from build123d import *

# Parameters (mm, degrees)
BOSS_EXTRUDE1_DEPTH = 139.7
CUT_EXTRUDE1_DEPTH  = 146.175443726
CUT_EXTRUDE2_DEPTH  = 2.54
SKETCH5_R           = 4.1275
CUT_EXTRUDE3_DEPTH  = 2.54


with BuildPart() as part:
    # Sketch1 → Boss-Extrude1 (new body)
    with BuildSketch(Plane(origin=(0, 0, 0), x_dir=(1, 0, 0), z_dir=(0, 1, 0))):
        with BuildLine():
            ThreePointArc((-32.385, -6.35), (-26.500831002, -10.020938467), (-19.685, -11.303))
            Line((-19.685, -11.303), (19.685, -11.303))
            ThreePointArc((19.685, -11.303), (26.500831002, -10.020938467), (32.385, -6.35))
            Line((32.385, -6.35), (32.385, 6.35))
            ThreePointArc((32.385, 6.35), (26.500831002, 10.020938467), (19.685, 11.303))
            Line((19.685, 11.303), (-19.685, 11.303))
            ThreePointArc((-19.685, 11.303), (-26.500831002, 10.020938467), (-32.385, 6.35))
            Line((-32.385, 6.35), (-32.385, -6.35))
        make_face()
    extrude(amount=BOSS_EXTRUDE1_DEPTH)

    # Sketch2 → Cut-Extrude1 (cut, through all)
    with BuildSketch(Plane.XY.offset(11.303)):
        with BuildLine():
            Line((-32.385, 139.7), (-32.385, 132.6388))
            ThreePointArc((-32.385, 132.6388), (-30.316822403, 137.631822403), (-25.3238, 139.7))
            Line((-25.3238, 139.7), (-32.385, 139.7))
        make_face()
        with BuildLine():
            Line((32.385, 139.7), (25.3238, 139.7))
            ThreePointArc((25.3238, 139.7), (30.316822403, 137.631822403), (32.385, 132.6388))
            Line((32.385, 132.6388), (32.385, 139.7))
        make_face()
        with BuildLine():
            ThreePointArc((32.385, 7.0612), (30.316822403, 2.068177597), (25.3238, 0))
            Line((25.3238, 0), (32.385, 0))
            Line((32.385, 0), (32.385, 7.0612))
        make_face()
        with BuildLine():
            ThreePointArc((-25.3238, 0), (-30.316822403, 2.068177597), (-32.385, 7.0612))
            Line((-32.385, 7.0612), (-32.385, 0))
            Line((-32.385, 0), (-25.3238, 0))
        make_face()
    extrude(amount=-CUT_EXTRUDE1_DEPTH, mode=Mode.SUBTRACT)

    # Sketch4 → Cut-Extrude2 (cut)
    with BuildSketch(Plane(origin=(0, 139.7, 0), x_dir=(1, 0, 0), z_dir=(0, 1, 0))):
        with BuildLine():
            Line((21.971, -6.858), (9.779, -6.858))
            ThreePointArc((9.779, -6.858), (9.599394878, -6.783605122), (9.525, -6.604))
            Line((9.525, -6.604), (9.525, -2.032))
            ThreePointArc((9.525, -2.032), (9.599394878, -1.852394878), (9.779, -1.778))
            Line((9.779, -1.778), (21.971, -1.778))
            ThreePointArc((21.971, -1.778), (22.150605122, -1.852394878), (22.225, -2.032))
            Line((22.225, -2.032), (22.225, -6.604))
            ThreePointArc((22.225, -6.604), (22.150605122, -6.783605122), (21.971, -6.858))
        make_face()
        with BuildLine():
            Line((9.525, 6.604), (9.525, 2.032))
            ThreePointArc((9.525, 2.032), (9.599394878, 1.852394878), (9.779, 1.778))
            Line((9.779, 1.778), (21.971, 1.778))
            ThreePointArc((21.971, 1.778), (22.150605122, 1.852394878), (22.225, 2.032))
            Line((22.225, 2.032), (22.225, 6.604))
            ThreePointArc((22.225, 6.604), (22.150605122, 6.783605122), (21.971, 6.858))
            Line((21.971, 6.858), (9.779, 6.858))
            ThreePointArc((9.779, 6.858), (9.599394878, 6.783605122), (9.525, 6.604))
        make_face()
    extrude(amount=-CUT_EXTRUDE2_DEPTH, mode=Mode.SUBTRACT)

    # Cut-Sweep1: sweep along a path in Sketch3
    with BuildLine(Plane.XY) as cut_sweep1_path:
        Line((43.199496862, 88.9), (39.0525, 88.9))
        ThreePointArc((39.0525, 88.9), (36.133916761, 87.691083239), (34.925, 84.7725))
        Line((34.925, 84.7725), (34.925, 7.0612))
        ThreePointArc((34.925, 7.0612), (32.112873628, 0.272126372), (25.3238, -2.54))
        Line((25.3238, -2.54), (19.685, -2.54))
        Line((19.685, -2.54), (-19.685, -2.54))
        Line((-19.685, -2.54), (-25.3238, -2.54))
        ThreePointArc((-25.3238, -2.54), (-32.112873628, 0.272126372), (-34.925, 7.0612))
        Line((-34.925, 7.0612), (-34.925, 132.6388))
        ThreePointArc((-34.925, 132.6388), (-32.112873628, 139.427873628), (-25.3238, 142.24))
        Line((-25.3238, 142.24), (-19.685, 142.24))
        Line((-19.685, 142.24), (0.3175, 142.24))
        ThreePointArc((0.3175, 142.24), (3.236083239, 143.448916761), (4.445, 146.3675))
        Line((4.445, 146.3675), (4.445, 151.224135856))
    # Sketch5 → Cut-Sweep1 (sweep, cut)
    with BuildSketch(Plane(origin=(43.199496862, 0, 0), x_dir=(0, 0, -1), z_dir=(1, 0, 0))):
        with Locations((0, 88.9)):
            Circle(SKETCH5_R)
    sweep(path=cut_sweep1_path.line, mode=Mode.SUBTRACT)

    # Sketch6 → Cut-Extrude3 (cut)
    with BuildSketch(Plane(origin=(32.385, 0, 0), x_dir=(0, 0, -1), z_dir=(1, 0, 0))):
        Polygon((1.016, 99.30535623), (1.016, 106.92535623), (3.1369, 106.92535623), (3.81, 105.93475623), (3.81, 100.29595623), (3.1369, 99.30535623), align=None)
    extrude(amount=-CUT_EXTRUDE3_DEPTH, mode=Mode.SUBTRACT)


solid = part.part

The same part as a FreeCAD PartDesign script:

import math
import FreeCAD as App
import Part
import Sketcher
Q = App.Units.Quantity


def add_polygon(sketch, points):
    """Adds a closed chain of lines whose ends are joined by coincident constraints."""
    first, n = sketch.GeometryCount, len(points)
    for a, b in zip(points, points[1:] + points[:1]):
        sketch.addGeometry(Part.LineSegment(App.Vector(*a, 0), App.Vector(*b, 0)), False)
    for i in range(n):
        sketch.addConstraint(Sketcher.Constraint("Coincident", first + i, 2, first + (i + 1) % n, 1))

doc = App.newDocument("Part")
body = doc.addObject("PartDesign::Body", "Body")

# Sketch on XZ plane
sketch1 = body.newObject("Sketcher::SketchObject", "Sketch")
sketch1.AttachmentSupport = (doc.getObject("XZ_Plane"), [""])
sketch1.MapMode = "FlatFace"
sketch1.addGeometry([
    Part.ArcOfCircle(Part.Circle(App.Vector(-20, -7, 0), App.Vector(0, 0, 1), 19), math.radians(90), math.radians(133)),  # 0
    Part.LineSegment(App.Vector(-20, 11, 0), App.Vector(20, 11, 0)),  # 1
    Part.ArcOfCircle(Part.Circle(App.Vector(20, -7, 0), App.Vector(0, 0, 1), 19), math.radians(47), math.radians(90)),  # 2
    Part.LineSegment(App.Vector(32, 6, 0), App.Vector(32, -6, 0)),  # 3
    Part.ArcOfCircle(Part.Circle(App.Vector(20, 7, 0), App.Vector(0, 0, 1), 19), math.radians(-90), math.radians(-47)),  # 4
    Part.LineSegment(App.Vector(20, -11, 0), App.Vector(-20, -11, 0)),  # 5
    Part.ArcOfCircle(Part.Circle(App.Vector(-20, 7, 0), App.Vector(0, 0, 1), 19), math.radians(-133), math.radians(-90)),  # 6
    Part.LineSegment(App.Vector(-32, -6, 0), App.Vector(-32, 6, 0)),  # 7
], False)
sketch1.addConstraint([
    Sketcher.Constraint("Tangent", 0, 1, 1, 1),
    Sketcher.Constraint("Tangent", 1, 2, 2, 2),
    Sketcher.Constraint("Coincident", 2, 1, 3, 1),
    Sketcher.Constraint("Coincident", 3, 2, 4, 2),
    Sketcher.Constraint("Tangent", 4, 1, 5, 1),
    Sketcher.Constraint("Tangent", 5, 2, 6, 2),
    Sketcher.Constraint("Coincident", 6, 1, 7, 1),
    Sketcher.Constraint("Coincident", 7, 2, 0, 2),
    Sketcher.Constraint("Horizontal", 1),
    Sketcher.Constraint("Vertical", 3),
    Sketcher.Constraint("Horizontal", 5),
    Sketcher.Constraint("Vertical", 7),
    Sketcher.Constraint("Equal", 0, 2),
    Sketcher.Constraint("Equal", 2, 4),
    Sketcher.Constraint("Equal", 4, 6),
    Sketcher.Constraint("Symmetric", 0, 3, 4, 3, -1, 1),
    Sketcher.Constraint("Symmetric", 2, 1, 6, 1, -1, 1),
    Sketcher.Constraint("Horizontal", 3, 2, 6, 1),
    Sketcher.Constraint("DistanceY", 3, 2, 3, 1, Q("0.5 in")),
    Sketcher.Constraint("DistanceX", 1, 1, 1, 2, Q("1.55 in")),
    Sketcher.Constraint("DistanceX", 4, 3, 2, 1, Q("0.5 in")),
    Sketcher.Constraint("DistanceY", 4, 1, 1, 2, Q("0.89 in")),
])
pad1 = body.newObject("PartDesign::Pad", "Pad")
pad1.Profile = sketch1
pad1.Length = Q("5.5 in")
pad1.Reversed = True

# Sketch on XY plane
sketch2 = body.newObject("Sketcher::SketchObject", "Sketch001")
sketch2.AttachmentSupport = (doc.getObject("XY_Plane"), [""])
sketch2.MapMode = "FlatFace"
sketch2.AttachmentOffset = App.Placement(App.Vector(0, 0, 0.445 * 25.4), App.Rotation())
sketch2.addGeometry([
    Part.LineSegment(App.Vector(-32, 140, 0), App.Vector(-32, 133, 0)),  # 0
    Part.ArcOfCircle(Part.Circle(App.Vector(-25, 133, 0), App.Vector(0, 0, 1), 7), math.radians(90), math.radians(180)),  # 1
    Part.LineSegment(App.Vector(-25, 140, 0), App.Vector(-32, 140, 0)),  # 2
    Part.LineSegment(App.Vector(32, 140, 0), App.Vector(25, 140, 0)),  # 3
    Part.ArcOfCircle(Part.Circle(App.Vector(25, 133, 0), App.Vector(0, 0, 1), 7), math.radians(0), math.radians(90)),  # 4
    Part.LineSegment(App.Vector(32, 133, 0), App.Vector(32, 140, 0)),  # 5
    Part.ArcOfCircle(Part.Circle(App.Vector(25, 7, 0), App.Vector(0, 0, 1), 7), math.radians(-90), math.radians(0)),  # 6
    Part.LineSegment(App.Vector(25, 0, 0), App.Vector(32, 0, 0)),  # 7
    Part.LineSegment(App.Vector(32, 0, 0), App.Vector(32, 7, 0)),  # 8
    Part.ArcOfCircle(Part.Circle(App.Vector(-25, 7, 0), App.Vector(0, 0, 1), 7), math.radians(-180), math.radians(-90)),  # 9
    Part.LineSegment(App.Vector(-32, 7, 0), App.Vector(-32, 0, 0)),  # 10
    Part.LineSegment(App.Vector(-32, 0, 0), App.Vector(-25, 0, 0)),  # 11
], False)
sketch2.addConstraint([
    Sketcher.Constraint("Tangent", 0, 2, 1, 2),
    Sketcher.Constraint("Tangent", 1, 1, 2, 1),
    Sketcher.Constraint("Coincident", 2, 2, 0, 1),
    Sketcher.Constraint("Tangent", 3, 2, 4, 2),
    Sketcher.Constraint("Tangent", 4, 1, 5, 1),
    Sketcher.Constraint("Coincident", 5, 2, 3, 1),
    Sketcher.Constraint("Tangent", 6, 1, 7, 1),
    Sketcher.Constraint("Coincident", 7, 2, 8, 1),
    Sketcher.Constraint("Tangent", 8, 2, 6, 2),
    Sketcher.Constraint("Tangent", 9, 1, 10, 1),
    Sketcher.Constraint("Coincident", 10, 2, 11, 1),
    Sketcher.Constraint("Tangent", 11, 2, 9, 2),
    Sketcher.Constraint("Vertical", 0),
    Sketcher.Constraint("Horizontal", 2),
    Sketcher.Constraint("Horizontal", 3),
    Sketcher.Constraint("Vertical", 5),
    Sketcher.Constraint("Horizontal", 7),
    Sketcher.Constraint("Vertical", 8),
    Sketcher.Constraint("Vertical", 10),
    Sketcher.Constraint("Horizontal", 11),
    Sketcher.Constraint("Equal", 1, 4),
    Sketcher.Constraint("Equal", 4, 6),
    Sketcher.Constraint("Equal", 6, 9),
    Sketcher.Constraint("Symmetric", 7, 2, 10, 2, -1, 1),
    Sketcher.Constraint("Symmetric", 1, 3, 4, 3, -2),
    Sketcher.Constraint("PointOnObject", 6, 1, -1),
    Sketcher.Constraint("Vertical", 4, 3, 6, 3),
    Sketcher.Constraint("Radius", 1, Q("0.278 in")),
    Sketcher.Constraint("DistanceY", -1, 1, 1, 1, Q("5.5 in")),
    Sketcher.Constraint("DistanceX", 0, 2, 4, 1, Q("2.55 in")),
])
pocket1 = body.newObject("PartDesign::Pocket", "Pocket")
pocket1.Profile = sketch2
pocket1.Type = "ThroughAll"

# Sketch on XZ plane
sketch3 = body.newObject("Sketcher::SketchObject", "Sketch002")
sketch3.AttachmentSupport = (doc.getObject("XZ_Plane"), [""])
sketch3.MapMode = "FlatFace"
sketch3.AttachmentOffset = App.Placement(App.Vector(0, 0, -5.5 * 25.4), App.Rotation())
sketch3.addGeometry([
    Part.LineSegment(App.Vector(9.78, 6.86, 0), App.Vector(21.97, 6.86, 0)),  # 0
    Part.ArcOfCircle(Part.Circle(App.Vector(21.97, 6.6, 0), App.Vector(0, 0, 1), 0.25), math.radians(0), math.radians(90)),  # 1
    Part.LineSegment(App.Vector(22.23, 6.6, 0), App.Vector(22.23, 2.03, 0)),  # 2
    Part.ArcOfCircle(Part.Circle(App.Vector(21.97, 2.03, 0), App.Vector(0, 0, 1), 0.25), math.radians(-90), math.radians(0)),  # 3
    Part.LineSegment(App.Vector(21.97, 1.78, 0), App.Vector(9.78, 1.78, 0)),  # 4
    Part.ArcOfCircle(Part.Circle(App.Vector(9.78, 2.03, 0), App.Vector(0, 0, 1), 0.25), math.radians(-180), math.radians(-90)),  # 5
    Part.LineSegment(App.Vector(9.53, 2.03, 0), App.Vector(9.53, 6.6, 0)),  # 6
    Part.ArcOfCircle(Part.Circle(App.Vector(9.78, 6.6, 0), App.Vector(0, 0, 1), 0.25), math.radians(90), math.radians(180)),  # 7
    Part.LineSegment(App.Vector(9.53, -6.6, 0), App.Vector(9.53, -2.03, 0)),  # 8
    Part.ArcOfCircle(Part.Circle(App.Vector(9.78, -2.03, 0), App.Vector(0, 0, 1), 0.25), math.radians(90), math.radians(180)),  # 9
    Part.LineSegment(App.Vector(9.78, -1.78, 0), App.Vector(21.97, -1.78, 0)),  # 10
    Part.ArcOfCircle(Part.Circle(App.Vector(21.97, -2.03, 0), App.Vector(0, 0, 1), 0.25), math.radians(0), math.radians(90)),  # 11
    Part.LineSegment(App.Vector(22.23, -2.03, 0), App.Vector(22.23, -6.6, 0)),  # 12
    Part.ArcOfCircle(Part.Circle(App.Vector(21.97, -6.6, 0), App.Vector(0, 0, 1), 0.25), math.radians(-90), math.radians(0)),  # 13
    Part.LineSegment(App.Vector(21.97, -6.86, 0), App.Vector(9.78, -6.86, 0)),  # 14
    Part.ArcOfCircle(Part.Circle(App.Vector(9.78, -6.6, 0), App.Vector(0, 0, 1), 0.25), math.radians(-180), math.radians(-90)),  # 15
], False)
sketch3.addConstraint([
    Sketcher.Constraint("Tangent", 0, 2, 1, 2),
    Sketcher.Constraint("Tangent", 1, 1, 2, 1),
    Sketcher.Constraint("Tangent", 2, 2, 3, 2),
    Sketcher.Constraint("Tangent", 3, 1, 4, 1),
    Sketcher.Constraint("Tangent", 4, 2, 5, 2),
    Sketcher.Constraint("Tangent", 5, 1, 6, 1),
    Sketcher.Constraint("Tangent", 6, 2, 7, 2),
    Sketcher.Constraint("Tangent", 7, 1, 0, 1),
    Sketcher.Constraint("Tangent", 8, 2, 9, 2),
    Sketcher.Constraint("Tangent", 9, 1, 10, 1),
    Sketcher.Constraint("Tangent", 10, 2, 11, 2),
    Sketcher.Constraint("Tangent", 11, 1, 12, 1),
    Sketcher.Constraint("Tangent", 12, 2, 13, 2),
    Sketcher.Constraint("Tangent", 13, 1, 14, 1),
    Sketcher.Constraint("Tangent", 14, 2, 15, 2),
    Sketcher.Constraint("Tangent", 15, 1, 8, 1),
    Sketcher.Constraint("Horizontal", 0),
    Sketcher.Constraint("Vertical", 2),
    Sketcher.Constraint("Horizontal", 4),
    Sketcher.Constraint("Vertical", 6),
    Sketcher.Constraint("Vertical", 8),
    Sketcher.Constraint("Horizontal", 10),
    Sketcher.Constraint("Vertical", 12),
    Sketcher.Constraint("Horizontal", 14),
    Sketcher.Constraint("Equal", 1, 3),
    Sketcher.Constraint("Equal", 3, 5),
    Sketcher.Constraint("Equal", 5, 7),
    Sketcher.Constraint("Equal", 7, 9),
    Sketcher.Constraint("Equal", 9, 11),
    Sketcher.Constraint("Equal", 11, 13),
    Sketcher.Constraint("Equal", 13, 15),
    Sketcher.Constraint("Symmetric", 5, 3, 9, 3, -1),
    Sketcher.Constraint("Symmetric", 1, 3, 13, 3, -1),
    Sketcher.Constraint("Radius", 1, Q("0.01 in")),
    Sketcher.Constraint("DistanceX", 0, 1, 0, 2, Q("0.48 in")),
    Sketcher.Constraint("DistanceY", 2, 2, 2, 1, Q("0.18 in")),
    Sketcher.Constraint("DistanceY", -1, 1, 1, 3, Q("0.26 in")),
    Sketcher.Constraint("DistanceX", -1, 1, 1, 3, Q("0.865 in")),
])
pocket2 = body.newObject("PartDesign::Pocket", "Pocket001")
pocket2.Profile = sketch3
pocket2.Length = Q("0.1 in")
pocket2.Reversed = True

# Sketch on YZ plane
sketch4 = body.newObject("Sketcher::SketchObject", "Sketch003")
sketch4.AttachmentSupport = (doc.getObject("YZ_Plane"), [""])
sketch4.MapMode = "FlatFace"
sketch4.AttachmentOffset = App.Placement(App.Vector(0, 0, 43.199497), App.Rotation())
sketch4.addGeometry(Part.Circle(App.Vector(88.9, 0, 0), App.Vector(0, 0, 1), 4.1), False)
sketch4.addConstraint([
    Sketcher.Constraint("PointOnObject", 0, 3, -1),
    Sketcher.Constraint("Diameter", 0, Q("0.325 in")),
    Sketcher.Constraint("DistanceX", -1, 1, 0, 3, Q("3.5 in")),
])

# Sketch on XY plane
sketch5 = body.newObject("Sketcher::SketchObject", "Sketch004")
sketch5.AttachmentSupport = (doc.getObject("XY_Plane"), [""])
sketch5.MapMode = "FlatFace"
sketch5.addGeometry([
    Part.LineSegment(App.Vector(43.2, 88.9, 0), App.Vector(39.1, 88.9, 0)),  # 0
    Part.ArcOfCircle(Part.Circle(App.Vector(39.1, 84.8, 0), App.Vector(0, 0, 1), 4.1), math.radians(90), math.radians(180)),  # 1
    Part.LineSegment(App.Vector(34.9, 84.8, 0), App.Vector(34.9, 7.1, 0)),  # 2
    Part.ArcOfCircle(Part.Circle(App.Vector(25.3, 7.1, 0), App.Vector(0, 0, 1), 9.6), math.radians(-90), math.radians(0)),  # 3
    Part.LineSegment(App.Vector(25.3, -2.5, 0), App.Vector(-25.3, -2.5, 0)),  # 4
    Part.ArcOfCircle(Part.Circle(App.Vector(-25.3, 7.1, 0), App.Vector(0, 0, 1), 9.6), math.radians(180), math.radians(270)),  # 5
    Part.LineSegment(App.Vector(-34.9, 7.1, 0), App.Vector(-34.9, 132.6, 0)),  # 6
    Part.ArcOfCircle(Part.Circle(App.Vector(-25.3, 132.6, 0), App.Vector(0, 0, 1), 9.6), math.radians(90), math.radians(180)),  # 7
    Part.LineSegment(App.Vector(-25.3, 142.2, 0), App.Vector(0.3, 142.2, 0)),  # 8
    Part.ArcOfCircle(Part.Circle(App.Vector(0.3, 146.4, 0), App.Vector(0, 0, 1), 4.1), math.radians(-90), math.radians(0)),  # 9
    Part.LineSegment(App.Vector(4.4, 146.4, 0), App.Vector(4.4, 151.2, 0)),  # 10
], False)
sketch5.addConstraint([
    Sketcher.Constraint("Tangent", 0, 2, 1, 1),
    Sketcher.Constraint("Tangent", 1, 2, 2, 1),
    Sketcher.Constraint("Tangent", 2, 2, 3, 2),
    Sketcher.Constraint("Tangent", 3, 1, 4, 1),
    Sketcher.Constraint("Tangent", 4, 2, 5, 2),
    Sketcher.Constraint("Tangent", 5, 1, 6, 1),
    Sketcher.Constraint("Tangent", 6, 2, 7, 2),
    Sketcher.Constraint("Tangent", 7, 1, 8, 1),
    Sketcher.Constraint("Tangent", 8, 2, 9, 1),
    Sketcher.Constraint("Tangent", 9, 2, 10, 1),
    Sketcher.Constraint("Horizontal", 0),
    Sketcher.Constraint("Vertical", 2),
    Sketcher.Constraint("Horizontal", 4),
    Sketcher.Constraint("Vertical", 6),
    Sketcher.Constraint("Horizontal", 8),
    Sketcher.Constraint("Vertical", 10),
    Sketcher.Constraint("Equal", 3, 5),
    Sketcher.Constraint("Equal", 5, 7),
    Sketcher.Constraint("Equal", 1, 9),
    Sketcher.Constraint("Radius", 3, Q("0.378 in")),
    Sketcher.Constraint("DistanceY", -1, 1, 0, 1, Q("3.5 in")),
    Sketcher.Constraint("DistanceY", 3, 1, -1, 1, Q("0.1 in")),
    Sketcher.Constraint("DistanceY", -1, 1, 7, 1, Q("5.6 in")),
    Sketcher.Constraint("Radius", 1, Q("0.1625 in")),
    Sketcher.Constraint("DistanceX", 4, 2, 4, 1, Q("1.994 in")),
    Sketcher.Constraint("DistanceX", 6, 2, 9, 2, Q("1.55 in")),
    Sketcher.Constraint("DistanceX", -1, 1, 3, 3, Q("0.997 in")),
    Sketcher.Constraint("DistanceX", 0, 2, 0, 1, Q("4.146997 mm")),
    Sketcher.Constraint("DistanceY", 10, 1, 10, 2, Q("4.856636 mm")),
])
doc.recompute()

subtractivepipe = body.newObject("PartDesign::SubtractivePipe", "SubtractivePipe")
subtractivepipe.Profile = sketch4
subtractivepipe.Spine = (sketch5, ["Edge1", "Edge2", "Edge3", "Edge4", "Edge5", "Edge6", "Edge7", "Edge8", "Edge9", "Edge10", "Edge11"])

# Sketch on YZ plane
sketch6 = body.newObject("Sketcher::SketchObject", "Sketch005")
sketch6.AttachmentSupport = (doc.getObject("YZ_Plane"), [""])
sketch6.MapMode = "FlatFace"
sketch6.AttachmentOffset = App.Placement(App.Vector(0, 0, 1.275 * 25.4), App.Rotation())
add_polygon(sketch6, [(106.9, -1), (99.3, -1), (99.3, -3.1), (100.3, -3.8), (105.9, -3.8), (106.9, -3.1)])  # lines 0-5
sketch6.addConstraint([
    Sketcher.Constraint("Horizontal", 0),
    Sketcher.Constraint("Vertical", 1),
    Sketcher.Constraint("Horizontal", 3),
    Sketcher.Constraint("Vertical", 5),
    Sketcher.Constraint("Horizontal", 1, 2, 4, 2),
    Sketcher.Constraint("Equal", 2, 4),
    Sketcher.Constraint("DistanceX", 0, 2, 0, 1, Q("0.3 in")),
    Sketcher.Constraint("DistanceX", 3, 1, 3, 2, Q("0.222 in")),
    Sketcher.Constraint("DistanceY", 0, 2, -1, 1, Q("0.04 in")),
    Sketcher.Constraint("DistanceY", 2, 2, -1, 1, Q("0.15 in")),
    Sketcher.Constraint("DistanceY", 1, 2, 1, 1, Q("0.0835 in")),
    Sketcher.Constraint("DistanceX", -1, 1, 0, 2, Q("99.305356 mm")),
])
pocket3 = body.newObject("PartDesign::Pocket", "Pocket002")
pocket3.Profile = sketch6
pocket3.Length = Q("0.1 in")

doc.recompute()
